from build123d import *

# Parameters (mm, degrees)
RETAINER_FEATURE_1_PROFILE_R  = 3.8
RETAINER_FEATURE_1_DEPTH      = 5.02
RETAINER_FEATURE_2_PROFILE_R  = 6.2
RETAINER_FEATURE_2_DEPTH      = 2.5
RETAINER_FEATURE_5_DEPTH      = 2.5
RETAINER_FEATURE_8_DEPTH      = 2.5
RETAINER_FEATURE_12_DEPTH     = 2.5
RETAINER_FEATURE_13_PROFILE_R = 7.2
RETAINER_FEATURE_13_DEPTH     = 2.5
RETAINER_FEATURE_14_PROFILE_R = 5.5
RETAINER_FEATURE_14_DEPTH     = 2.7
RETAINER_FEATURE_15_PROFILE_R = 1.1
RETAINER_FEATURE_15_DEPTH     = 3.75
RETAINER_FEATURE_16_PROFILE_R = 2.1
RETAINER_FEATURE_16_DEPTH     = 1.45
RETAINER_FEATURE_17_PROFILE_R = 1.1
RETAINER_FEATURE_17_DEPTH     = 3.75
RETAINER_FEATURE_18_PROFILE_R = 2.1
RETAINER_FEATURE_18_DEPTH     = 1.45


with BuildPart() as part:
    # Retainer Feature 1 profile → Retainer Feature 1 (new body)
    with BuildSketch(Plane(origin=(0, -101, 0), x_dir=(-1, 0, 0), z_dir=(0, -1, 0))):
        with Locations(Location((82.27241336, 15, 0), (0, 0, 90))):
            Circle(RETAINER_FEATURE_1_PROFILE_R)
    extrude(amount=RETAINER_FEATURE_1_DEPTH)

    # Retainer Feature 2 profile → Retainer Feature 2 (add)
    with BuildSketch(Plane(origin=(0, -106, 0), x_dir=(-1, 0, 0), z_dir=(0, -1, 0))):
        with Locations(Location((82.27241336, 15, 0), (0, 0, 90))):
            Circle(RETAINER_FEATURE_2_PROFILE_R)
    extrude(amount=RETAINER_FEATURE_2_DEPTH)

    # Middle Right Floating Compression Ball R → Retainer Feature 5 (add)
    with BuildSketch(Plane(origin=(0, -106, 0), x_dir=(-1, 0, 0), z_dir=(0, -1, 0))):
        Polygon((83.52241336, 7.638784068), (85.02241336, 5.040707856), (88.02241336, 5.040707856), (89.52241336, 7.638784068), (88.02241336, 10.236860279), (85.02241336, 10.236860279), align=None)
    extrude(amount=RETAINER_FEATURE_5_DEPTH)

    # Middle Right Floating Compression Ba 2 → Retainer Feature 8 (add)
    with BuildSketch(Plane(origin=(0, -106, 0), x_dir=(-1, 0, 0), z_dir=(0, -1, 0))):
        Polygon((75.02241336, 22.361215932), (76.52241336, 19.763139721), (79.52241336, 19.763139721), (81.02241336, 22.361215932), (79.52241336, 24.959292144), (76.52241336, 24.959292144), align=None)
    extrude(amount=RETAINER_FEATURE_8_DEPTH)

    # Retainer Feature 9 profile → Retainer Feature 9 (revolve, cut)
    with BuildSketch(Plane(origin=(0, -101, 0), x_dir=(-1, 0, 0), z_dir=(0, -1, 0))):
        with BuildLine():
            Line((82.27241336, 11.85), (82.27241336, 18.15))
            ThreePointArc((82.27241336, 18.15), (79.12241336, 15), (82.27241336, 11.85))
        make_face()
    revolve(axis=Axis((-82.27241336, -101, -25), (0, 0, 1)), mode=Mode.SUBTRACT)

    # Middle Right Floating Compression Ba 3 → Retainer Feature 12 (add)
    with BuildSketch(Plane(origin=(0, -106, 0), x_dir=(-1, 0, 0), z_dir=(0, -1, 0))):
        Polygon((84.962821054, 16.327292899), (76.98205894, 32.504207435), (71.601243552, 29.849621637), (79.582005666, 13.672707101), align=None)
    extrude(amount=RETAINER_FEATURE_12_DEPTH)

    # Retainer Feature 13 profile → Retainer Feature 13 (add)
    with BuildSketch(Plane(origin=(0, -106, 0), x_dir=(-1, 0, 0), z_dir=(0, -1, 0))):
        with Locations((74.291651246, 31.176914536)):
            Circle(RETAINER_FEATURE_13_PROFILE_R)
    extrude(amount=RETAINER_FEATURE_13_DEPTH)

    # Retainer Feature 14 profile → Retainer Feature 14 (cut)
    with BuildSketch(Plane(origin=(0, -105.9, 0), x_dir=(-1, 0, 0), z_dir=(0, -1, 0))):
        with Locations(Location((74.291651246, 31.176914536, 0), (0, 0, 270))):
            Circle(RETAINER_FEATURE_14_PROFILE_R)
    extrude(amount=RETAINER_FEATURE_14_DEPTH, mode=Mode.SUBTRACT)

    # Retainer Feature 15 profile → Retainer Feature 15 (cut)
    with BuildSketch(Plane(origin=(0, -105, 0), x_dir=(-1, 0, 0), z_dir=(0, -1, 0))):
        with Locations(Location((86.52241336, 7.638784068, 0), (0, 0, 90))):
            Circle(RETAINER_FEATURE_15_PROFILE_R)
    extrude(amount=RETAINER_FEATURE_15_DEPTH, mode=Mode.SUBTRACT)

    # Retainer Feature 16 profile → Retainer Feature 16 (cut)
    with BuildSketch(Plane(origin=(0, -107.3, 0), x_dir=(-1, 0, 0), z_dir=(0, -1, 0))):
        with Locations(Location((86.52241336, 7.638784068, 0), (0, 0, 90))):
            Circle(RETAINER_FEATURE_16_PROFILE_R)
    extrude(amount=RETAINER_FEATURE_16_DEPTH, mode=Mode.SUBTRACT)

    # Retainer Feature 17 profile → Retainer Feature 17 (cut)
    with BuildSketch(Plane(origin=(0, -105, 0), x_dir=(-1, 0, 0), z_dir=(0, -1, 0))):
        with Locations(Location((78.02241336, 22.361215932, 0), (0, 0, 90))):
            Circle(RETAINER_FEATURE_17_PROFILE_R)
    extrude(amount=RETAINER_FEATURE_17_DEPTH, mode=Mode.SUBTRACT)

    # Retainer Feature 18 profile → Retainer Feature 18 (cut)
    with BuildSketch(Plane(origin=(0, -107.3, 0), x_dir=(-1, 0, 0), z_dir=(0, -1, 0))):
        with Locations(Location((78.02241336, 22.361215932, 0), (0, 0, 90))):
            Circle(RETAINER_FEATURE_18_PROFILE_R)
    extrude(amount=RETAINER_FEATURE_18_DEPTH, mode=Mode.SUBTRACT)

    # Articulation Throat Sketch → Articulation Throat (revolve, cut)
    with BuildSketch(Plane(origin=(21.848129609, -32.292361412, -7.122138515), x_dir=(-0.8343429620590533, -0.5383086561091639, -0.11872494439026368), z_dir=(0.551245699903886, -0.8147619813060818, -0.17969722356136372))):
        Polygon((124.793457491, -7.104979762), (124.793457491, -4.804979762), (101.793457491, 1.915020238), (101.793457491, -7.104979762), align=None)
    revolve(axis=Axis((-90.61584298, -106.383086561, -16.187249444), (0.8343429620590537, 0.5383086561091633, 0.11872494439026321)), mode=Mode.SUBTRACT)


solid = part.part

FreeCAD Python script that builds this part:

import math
import FreeCAD as App
import Part
import Sketcher
Q = App.Units.Quantity


def add_polygon(sketch, points):
    """Adds a closed chain of lines whose ends are joined by coincident constraints."""
    first, n = sketch.GeometryCount, len(points)
    for a, b in zip(points, points[1:] + points[:1]):
        sketch.addGeometry(Part.LineSegment(App.Vector(*a, 0), App.Vector(*b, 0)), False)
    for i in range(n):
        sketch.addConstraint(Sketcher.Constraint("Coincident", first + i, 2, first + (i + 1) % n, 1))

doc = App.newDocument("Part")
body = doc.addObject("PartDesign::Body", "Body")

# Sketch on XZ plane
sketch1 = body.newObject("Sketcher::SketchObject", "Sketch")
sketch1.AttachmentSupport = (doc.getObject("XZ_Plane"), [""])
sketch1.MapMode = "FlatFace"
sketch1.AttachmentOffset = App.Placement(App.Vector(0, 0, 101), App.Rotation())
sketch1.addGeometry(Part.Circle(App.Vector(-82.272413, -15, 0), App.Vector(0, 0, 1), 3.8), False)
sketch1.addConstraint([
    Sketcher.Constraint("Diameter", 0, Q("7.6 mm")),
    Sketcher.Constraint("DistanceY", 0, 3, -1, 1, Q("15 mm")),
    Sketcher.Constraint("DistanceX", 0, 3, -1, 1, Q("82.272413 mm")),
])
pad1 = body.newObject("PartDesign::Pad", "Pad")
pad1.Profile = sketch1
pad1.Length = 5.02

# Sketch on XZ plane
sketch2 = body.newObject("Sketcher::SketchObject", "Sketch001")
sketch2.AttachmentSupport = (doc.getObject("XZ_Plane"), [""])
sketch2.MapMode = "FlatFace"
sketch2.AttachmentOffset = App.Placement(App.Vector(0, 0, 106), App.Rotation())
sketch2.addGeometry(Part.Circle(App.Vector(-82.272413, -15, 0), App.Vector(0, 0, 1), 6.2), False)
sketch2.addConstraint([
    Sketcher.Constraint("Diameter", 0, Q("12.4 mm")),
    Sketcher.Constraint("DistanceY", 0, 3, -1, 1, Q("15 mm")),
    Sketcher.Constraint("DistanceX", 0, 3, -1, 1, Q("82.272413 mm")),
])
pad2 = body.newObject("PartDesign::Pad", "Pad001")
pad2.Profile = sketch2
pad2.Length = 2.5

# Sketch on XZ plane
sketch3 = body.newObject("Sketcher::SketchObject", "Sketch002")
sketch3.AttachmentSupport = (doc.getObject("XZ_Plane"), [""])
sketch3.MapMode = "FlatFace"
sketch3.AttachmentOffset = App.Placement(App.Vector(0, 0, 106), App.Rotation())
add_polygon(sketch3, [(-83.522413, -7.638784), (-85.022413, -5.040708), (-88.022413, -5.040708), (-89.522413, -7.638784), (-88.022413, -10.23686), (-85.022413, -10.23686)])  # lines 0-5
sketch3.addConstraint([
    Sketcher.Constraint("Horizontal", 1),
    Sketcher.Constraint("Horizontal", 4),
    Sketcher.Constraint("Parallel", 0, 3),
    Sketcher.Constraint("Parallel", 2, 5),
    Sketcher.Constraint("Horizontal", 2, 2, 5, 2),
    Sketcher.Constraint("Vertical", 1, 2, 3, 2),
    Sketcher.Constraint("Vertical", 0, 2, 4, 2),
    Sketcher.Constraint("DistanceX", 1, 2, 1, 1, Q("3 mm")),
    Sketcher.Constraint("Angle", 0, Q("120 deg")),
    Sketcher.Constraint("Distance", 0, Q("3 mm")),
    Sketcher.Constraint("DistanceY", 3, 2, -1, 1, Q("10.23686 mm")),
    Sketcher.Constraint("DistanceX", 0, 2, -1, 1, Q("85.022413 mm")),
])
pad3 = body.newObject("PartDesign::Pad", "Pad002")
pad3.Profile = sketch3
pad3.Length = 2.5

# Sketch on XZ plane
sketch4 = body.newObject("Sketcher::SketchObject", "Sketch003")
sketch4.AttachmentSupport = (doc.getObject("XZ_Plane"), [""])
sketch4.MapMode = "FlatFace"
sketch4.AttachmentOffset = App.Placement(App.Vector(0, 0, 106), App.Rotation())
add_polygon(sketch4, [(-75.022413, -22.361216), (-76.522413, -19.76314), (-79.522413, -19.76314), (-81.022413, -22.361216), (-79.522413, -24.959292), (-76.522413, -24.959292)])  # lines 0-5
sketch4.addConstraint([
    Sketcher.Constraint("Horizontal", 1),
    Sketcher.Constraint("Horizontal", 4),
    Sketcher.Constraint("Parallel", 0, 3),
    Sketcher.Constraint("Parallel", 2, 5),
    Sketcher.Constraint("Horizontal", 2, 2, 5, 2),
    Sketcher.Constraint("Vertical", 1, 2, 3, 2),
    Sketcher.Constraint("Vertical", 0, 2, 4, 2),
    Sketcher.Constraint("DistanceX", 1, 2, 1, 1, Q("3 mm")),
    Sketcher.Constraint("Angle", 0, Q("120 deg")),
    Sketcher.Constraint("Distance", 0, Q("3 mm")),
    Sketcher.Constraint("DistanceY", 0, 2, -1, 1, Q("19.76314 mm")),
    Sketcher.Constraint("DistanceX", 0, 2, -1, 1, Q("76.522413 mm")),
])
pad4 = body.newObject("PartDesign::Pad", "Pad003")
pad4.Profile = sketch4
pad4.Length = 2.5

# Sketch on XZ plane
sketch5 = body.newObject("Sketcher::SketchObject", "Sketch004")
sketch5.AttachmentSupport = (doc.getObject("XZ_Plane"), [""])
sketch5.MapMode = "FlatFace"
sketch5.AttachmentOffset = App.Placement(App.Vector(0, 0, 101), App.Rotation())
sketch5.addGeometry([
    Part.LineSegment(App.Vector(-82.272413, -11.85, 0), App.Vector(-82.272413, -18.15, 0)),
    Part.ArcOfCircle(Part.Circle(App.Vector(-82.272413, -15, 0), App.Vector(0, 0, 1), 3.15), math.radians(-90), math.radians(90)),
], False)
sketch5.addGeometry(Part.LineSegment(App.Vector(-82.272413, -18.15, 0), App.Vector(-82.272413, -11.85, 0)), True)  # axis
sketch5.addConstraint([
    Sketcher.Constraint("Coincident", 0, 1, 1, 2),
    Sketcher.Constraint("Coincident", 1, 1, 0, 2),
    Sketcher.Constraint("Vertical", 0),
    Sketcher.Constraint("Vertical", 2),
    Sketcher.Constraint("Coincident", 2, 1, 1, 1),
    Sketcher.Constraint("Vertical", 1, 3, 0, 1),
    Sketcher.Constraint("Equal", 0, 2),
    Sketcher.Constraint("Radius", 1, Q("3.15 mm")),
    Sketcher.Constraint("DistanceY", 1, 3, -1, 1, Q("15 mm")),
    Sketcher.Constraint("DistanceX", 1, 3, -1, 1, Q("82.272413 mm")),
])
groove = body.newObject("PartDesign::Groove", "Groove")
groove.Profile = sketch5
groove.ReferenceAxis = (sketch5, ["Axis0"])
groove.Angle = 360

# Sketch on XZ plane
sketch6 = body.newObject("Sketcher::SketchObject", "Sketch005")
sketch6.AttachmentSupport = (doc.getObject("XZ_Plane"), [""])
sketch6.MapMode = "FlatFace"
sketch6.AttachmentOffset = App.Placement(App.Vector(0, 0, 106), App.Rotation())
add_polygon(sketch6, [(-84.962821, -16.327293), (-76.982059, -32.504207), (-71.601244, -29.849622), (-79.582006, -13.672707)])  # lines 0-3
sketch6.addConstraint([
    Sketcher.Constraint("Perpendicular", 0, 1),
    Sketcher.Constraint("Perpendicular", 1, 2),
    Sketcher.Constraint("Perpendicular", 2, 3),
    Sketcher.Constraint("Distance", 1, Q("6 mm")),
    Sketcher.Constraint("DistanceY", 0, 2, 2, 2, Q("18.8315 mm")),
    Sketcher.Constraint("DistanceX", 0, 2, -1, 1, Q("76.982059 mm")),
    Sketcher.Constraint("DistanceY", 1, 2, -1, 1, Q("29.849622 mm")),
    Sketcher.Constraint("DistanceX", 3, 2, -1, 1, Q("84.962821 mm")),
])
pad5 = body.newObject("PartDesign::Pad", "Pad004")
pad5.Profile = sketch6
pad5.Length = 2.5

# Sketch on XZ plane
sketch7 = body.newObject("Sketcher::SketchObject", "Sketch006")
sketch7.AttachmentSupport = (doc.getObject("XZ_Plane"), [""])
sketch7.MapMode = "FlatFace"
sketch7.AttachmentOffset = App.Placement(App.Vector(0, 0, 106), App.Rotation())
sketch7.addGeometry(Part.Circle(App.Vector(-74.291651, -31.176915, 0), App.Vector(0, 0, 1), 7.2), False)
sketch7.addConstraint([
    Sketcher.Constraint("Diameter", 0, Q("14.4 mm")),
    Sketcher.Constraint("DistanceX", 0, 3, -1, 1, Q("74.291651 mm")),
    Sketcher.Constraint("DistanceY", 0, 3, -1, 1, Q("31.176915 mm")),
])
pad6 = body.newObject("PartDesign::Pad", "Pad005")
pad6.Profile = sketch7
pad6.Length = 2.5

# Sketch on XZ plane
sketch8 = body.newObject("Sketcher::SketchObject", "Sketch007")
sketch8.AttachmentSupport = (doc.getObject("XZ_Plane"), [""])
sketch8.MapMode = "FlatFace"
sketch8.AttachmentOffset = App.Placement(App.Vector(0, 0, 105.9), App.Rotation())
sketch8.addGeometry(Part.Circle(App.Vector(-74.291651, -31.176915, 0), App.Vector(0, 0, 1), 5.5), False)
sketch8.addConstraint([
    Sketcher.Constraint("Diameter", 0, Q("11 mm")),
    Sketcher.Constraint("DistanceX", 0, 3, -1, 1, Q("74.291651 mm")),
    Sketcher.Constraint("DistanceY", 0, 3, -1, 1, Q("31.176915 mm")),
])
pocket1 = body.newObject("PartDesign::Pocket", "Pocket")
pocket1.Profile = sketch8
pocket1.Length = 2.7
pocket1.Reversed = True

# Sketch on XZ plane
sketch9 = body.newObject("Sketcher::SketchObject", "Sketch008")
sketch9.AttachmentSupport = (doc.getObject("XZ_Plane"), [""])
sketch9.MapMode = "FlatFace"
sketch9.AttachmentOffset = App.Placement(App.Vector(0, 0, 105), App.Rotation())
sketch9.addGeometry(Part.Circle(App.Vector(-86.522413, -7.638784, 0), App.Vector(0, 0, 1), 1.1), False)
sketch9.addConstraint([
    Sketcher.Constraint("Diameter", 0, Q("2.2 mm")),
    Sketcher.Constraint("DistanceX", 0, 3, -1, 1, Q("86.522413 mm")),
    Sketcher.Constraint("DistanceY", 0, 3, -1, 1, Q("7.638784 mm")),
])
pocket2 = body.newObject("PartDesign::Pocket", "Pocket001")
pocket2.Profile = sketch9
pocket2.Length = 3.75
pocket2.Reversed = True

# Sketch on XZ plane
sketch10 = body.newObject("Sketcher::SketchObject", "Sketch009")
sketch10.AttachmentSupport = (doc.getObject("XZ_Plane"), [""])
sketch10.MapMode = "FlatFace"
sketch10.AttachmentOffset = App.Placement(App.Vector(0, 0, 107.3), App.Rotation())
sketch10.addGeometry(Part.Circle(App.Vector(-86.522413, -7.638784, 0), App.Vector(0, 0, 1), 2.1), False)
sketch10.addConstraint([
    Sketcher.Constraint("Diameter", 0, Q("4.2 mm")),
    Sketcher.Constraint("DistanceX", 0, 3, -1, 1, Q("86.522413 mm")),
    Sketcher.Constraint("DistanceY", 0, 3, -1, 1, Q("7.638784 mm")),
])
pocket3 = body.newObject("PartDesign::Pocket", "Pocket002")
pocket3.Profile = sketch10
pocket3.Length = 1.45
pocket3.Reversed = True

# Sketch on XZ plane
sketch11 = body.newObject("Sketcher::SketchObject", "Sketch010")
sketch11.AttachmentSupport = (doc.getObject("XZ_Plane"), [""])
sketch11.MapMode = "FlatFace"
sketch11.AttachmentOffset = App.Placement(App.Vector(0, 0, 105), App.Rotation())
sketch11.addGeometry(Part.Circle(App.Vector(-78.022413, -22.361216, 0), App.Vector(0, 0, 1), 1.1), False)
sketch11.addConstraint([
    Sketcher.Constraint("Diameter", 0, Q("2.2 mm")),
    Sketcher.Constraint("DistanceX", 0, 3, -1, 1, Q("78.022413 mm")),
    Sketcher.Constraint("DistanceY", 0, 3, -1, 1, Q("22.361216 mm")),
])
pocket4 = body.newObject("PartDesign::Pocket", "Pocket003")
pocket4.Profile = sketch11
pocket4.Length = 3.75
pocket4.Reversed = True

# Sketch on XZ plane
sketch12 = body.newObject("Sketcher::SketchObject", "Sketch011")
sketch12.AttachmentSupport = (doc.getObject("XZ_Plane"), [""])
sketch12.MapMode = "FlatFace"
sketch12.AttachmentOffset = App.Placement(App.Vector(0, 0, 107.3), App.Rotation())
sketch12.addGeometry(Part.Circle(App.Vector(-78.022413, -22.361216, 0), App.Vector(0, 0, 1), 2.1), False)
sketch12.addConstraint([
    Sketcher.Constraint("Diameter", 0, Q("4.2 mm")),
    Sketcher.Constraint("DistanceX", 0, 3, -1, 1, Q("78.022413 mm")),
    Sketcher.Constraint("DistanceY", 0, 3, -1, 1, Q("22.361216 mm")),
])
pocket5 = body.newObject("PartDesign::Pocket", "Pocket004")
pocket5.Profile = sketch12
pocket5.Length = 1.45
pocket5.Reversed = True

# Sketch on an angled plane
sketch13 = body.newObject("Sketcher::SketchObject", "Sketch012")
sketch13.Placement = App.Placement(App.Vector(21.84813, -32.292361, -7.122139), App.Rotation(App.Vector(-0.834342962, -0.538308656, -0.118724944), App.Vector(-0.000000001, 0.215375729, -0.976531256), App.Vector(0.5512457, -0.814761981, -0.179697224), "ZXY"))
add_polygon(sketch13, [(124.793457, -7.10498), (124.793457, -4.80498), (101.793457, 1.91502), (101.793457, -7.10498)])  # lines 0-3
sketch13.addGeometry(Part.LineSegment(App.Vector(124.793457, -7.10498, 0), App.Vector(101.793457, -7.10498, 0)), True)  # axis
sketch13.addConstraint([
    Sketcher.Constraint("Vertical", 0),
    Sketcher.Constraint("Vertical", 2),
    Sketcher.Constraint("Horizontal", 3),
    Sketcher.Constraint("Horizontal", 4),
    Sketcher.Constraint("Coincident", 4, 1, 3, 2),
    Sketcher.Constraint("Vertical", 1, 2, 4, 2),
    Sketcher.Constraint("DistanceX", 3, 1, 3, 2, Q("23 mm")),
    Sketcher.Constraint("DistanceY", 0, 1, 0, 2, Q("2.3 mm")),
    Sketcher.Constraint("DistanceY", 2, 2, 2, 1, Q("9.02 mm")),
    Sketcher.Constraint("DistanceY", 0, 2, -1, 1, Q("4.80498 mm")),
    Sketcher.Constraint("DistanceX", -1, 1, 0, 2, Q("124.793457 mm")),
])
groove2 = body.newObject("PartDesign::Groove", "Groove001")
groove2.Profile = sketch13
groove2.ReferenceAxis = (sketch13, ["Axis0"])
groove2.Angle = 360

doc.recompute()
